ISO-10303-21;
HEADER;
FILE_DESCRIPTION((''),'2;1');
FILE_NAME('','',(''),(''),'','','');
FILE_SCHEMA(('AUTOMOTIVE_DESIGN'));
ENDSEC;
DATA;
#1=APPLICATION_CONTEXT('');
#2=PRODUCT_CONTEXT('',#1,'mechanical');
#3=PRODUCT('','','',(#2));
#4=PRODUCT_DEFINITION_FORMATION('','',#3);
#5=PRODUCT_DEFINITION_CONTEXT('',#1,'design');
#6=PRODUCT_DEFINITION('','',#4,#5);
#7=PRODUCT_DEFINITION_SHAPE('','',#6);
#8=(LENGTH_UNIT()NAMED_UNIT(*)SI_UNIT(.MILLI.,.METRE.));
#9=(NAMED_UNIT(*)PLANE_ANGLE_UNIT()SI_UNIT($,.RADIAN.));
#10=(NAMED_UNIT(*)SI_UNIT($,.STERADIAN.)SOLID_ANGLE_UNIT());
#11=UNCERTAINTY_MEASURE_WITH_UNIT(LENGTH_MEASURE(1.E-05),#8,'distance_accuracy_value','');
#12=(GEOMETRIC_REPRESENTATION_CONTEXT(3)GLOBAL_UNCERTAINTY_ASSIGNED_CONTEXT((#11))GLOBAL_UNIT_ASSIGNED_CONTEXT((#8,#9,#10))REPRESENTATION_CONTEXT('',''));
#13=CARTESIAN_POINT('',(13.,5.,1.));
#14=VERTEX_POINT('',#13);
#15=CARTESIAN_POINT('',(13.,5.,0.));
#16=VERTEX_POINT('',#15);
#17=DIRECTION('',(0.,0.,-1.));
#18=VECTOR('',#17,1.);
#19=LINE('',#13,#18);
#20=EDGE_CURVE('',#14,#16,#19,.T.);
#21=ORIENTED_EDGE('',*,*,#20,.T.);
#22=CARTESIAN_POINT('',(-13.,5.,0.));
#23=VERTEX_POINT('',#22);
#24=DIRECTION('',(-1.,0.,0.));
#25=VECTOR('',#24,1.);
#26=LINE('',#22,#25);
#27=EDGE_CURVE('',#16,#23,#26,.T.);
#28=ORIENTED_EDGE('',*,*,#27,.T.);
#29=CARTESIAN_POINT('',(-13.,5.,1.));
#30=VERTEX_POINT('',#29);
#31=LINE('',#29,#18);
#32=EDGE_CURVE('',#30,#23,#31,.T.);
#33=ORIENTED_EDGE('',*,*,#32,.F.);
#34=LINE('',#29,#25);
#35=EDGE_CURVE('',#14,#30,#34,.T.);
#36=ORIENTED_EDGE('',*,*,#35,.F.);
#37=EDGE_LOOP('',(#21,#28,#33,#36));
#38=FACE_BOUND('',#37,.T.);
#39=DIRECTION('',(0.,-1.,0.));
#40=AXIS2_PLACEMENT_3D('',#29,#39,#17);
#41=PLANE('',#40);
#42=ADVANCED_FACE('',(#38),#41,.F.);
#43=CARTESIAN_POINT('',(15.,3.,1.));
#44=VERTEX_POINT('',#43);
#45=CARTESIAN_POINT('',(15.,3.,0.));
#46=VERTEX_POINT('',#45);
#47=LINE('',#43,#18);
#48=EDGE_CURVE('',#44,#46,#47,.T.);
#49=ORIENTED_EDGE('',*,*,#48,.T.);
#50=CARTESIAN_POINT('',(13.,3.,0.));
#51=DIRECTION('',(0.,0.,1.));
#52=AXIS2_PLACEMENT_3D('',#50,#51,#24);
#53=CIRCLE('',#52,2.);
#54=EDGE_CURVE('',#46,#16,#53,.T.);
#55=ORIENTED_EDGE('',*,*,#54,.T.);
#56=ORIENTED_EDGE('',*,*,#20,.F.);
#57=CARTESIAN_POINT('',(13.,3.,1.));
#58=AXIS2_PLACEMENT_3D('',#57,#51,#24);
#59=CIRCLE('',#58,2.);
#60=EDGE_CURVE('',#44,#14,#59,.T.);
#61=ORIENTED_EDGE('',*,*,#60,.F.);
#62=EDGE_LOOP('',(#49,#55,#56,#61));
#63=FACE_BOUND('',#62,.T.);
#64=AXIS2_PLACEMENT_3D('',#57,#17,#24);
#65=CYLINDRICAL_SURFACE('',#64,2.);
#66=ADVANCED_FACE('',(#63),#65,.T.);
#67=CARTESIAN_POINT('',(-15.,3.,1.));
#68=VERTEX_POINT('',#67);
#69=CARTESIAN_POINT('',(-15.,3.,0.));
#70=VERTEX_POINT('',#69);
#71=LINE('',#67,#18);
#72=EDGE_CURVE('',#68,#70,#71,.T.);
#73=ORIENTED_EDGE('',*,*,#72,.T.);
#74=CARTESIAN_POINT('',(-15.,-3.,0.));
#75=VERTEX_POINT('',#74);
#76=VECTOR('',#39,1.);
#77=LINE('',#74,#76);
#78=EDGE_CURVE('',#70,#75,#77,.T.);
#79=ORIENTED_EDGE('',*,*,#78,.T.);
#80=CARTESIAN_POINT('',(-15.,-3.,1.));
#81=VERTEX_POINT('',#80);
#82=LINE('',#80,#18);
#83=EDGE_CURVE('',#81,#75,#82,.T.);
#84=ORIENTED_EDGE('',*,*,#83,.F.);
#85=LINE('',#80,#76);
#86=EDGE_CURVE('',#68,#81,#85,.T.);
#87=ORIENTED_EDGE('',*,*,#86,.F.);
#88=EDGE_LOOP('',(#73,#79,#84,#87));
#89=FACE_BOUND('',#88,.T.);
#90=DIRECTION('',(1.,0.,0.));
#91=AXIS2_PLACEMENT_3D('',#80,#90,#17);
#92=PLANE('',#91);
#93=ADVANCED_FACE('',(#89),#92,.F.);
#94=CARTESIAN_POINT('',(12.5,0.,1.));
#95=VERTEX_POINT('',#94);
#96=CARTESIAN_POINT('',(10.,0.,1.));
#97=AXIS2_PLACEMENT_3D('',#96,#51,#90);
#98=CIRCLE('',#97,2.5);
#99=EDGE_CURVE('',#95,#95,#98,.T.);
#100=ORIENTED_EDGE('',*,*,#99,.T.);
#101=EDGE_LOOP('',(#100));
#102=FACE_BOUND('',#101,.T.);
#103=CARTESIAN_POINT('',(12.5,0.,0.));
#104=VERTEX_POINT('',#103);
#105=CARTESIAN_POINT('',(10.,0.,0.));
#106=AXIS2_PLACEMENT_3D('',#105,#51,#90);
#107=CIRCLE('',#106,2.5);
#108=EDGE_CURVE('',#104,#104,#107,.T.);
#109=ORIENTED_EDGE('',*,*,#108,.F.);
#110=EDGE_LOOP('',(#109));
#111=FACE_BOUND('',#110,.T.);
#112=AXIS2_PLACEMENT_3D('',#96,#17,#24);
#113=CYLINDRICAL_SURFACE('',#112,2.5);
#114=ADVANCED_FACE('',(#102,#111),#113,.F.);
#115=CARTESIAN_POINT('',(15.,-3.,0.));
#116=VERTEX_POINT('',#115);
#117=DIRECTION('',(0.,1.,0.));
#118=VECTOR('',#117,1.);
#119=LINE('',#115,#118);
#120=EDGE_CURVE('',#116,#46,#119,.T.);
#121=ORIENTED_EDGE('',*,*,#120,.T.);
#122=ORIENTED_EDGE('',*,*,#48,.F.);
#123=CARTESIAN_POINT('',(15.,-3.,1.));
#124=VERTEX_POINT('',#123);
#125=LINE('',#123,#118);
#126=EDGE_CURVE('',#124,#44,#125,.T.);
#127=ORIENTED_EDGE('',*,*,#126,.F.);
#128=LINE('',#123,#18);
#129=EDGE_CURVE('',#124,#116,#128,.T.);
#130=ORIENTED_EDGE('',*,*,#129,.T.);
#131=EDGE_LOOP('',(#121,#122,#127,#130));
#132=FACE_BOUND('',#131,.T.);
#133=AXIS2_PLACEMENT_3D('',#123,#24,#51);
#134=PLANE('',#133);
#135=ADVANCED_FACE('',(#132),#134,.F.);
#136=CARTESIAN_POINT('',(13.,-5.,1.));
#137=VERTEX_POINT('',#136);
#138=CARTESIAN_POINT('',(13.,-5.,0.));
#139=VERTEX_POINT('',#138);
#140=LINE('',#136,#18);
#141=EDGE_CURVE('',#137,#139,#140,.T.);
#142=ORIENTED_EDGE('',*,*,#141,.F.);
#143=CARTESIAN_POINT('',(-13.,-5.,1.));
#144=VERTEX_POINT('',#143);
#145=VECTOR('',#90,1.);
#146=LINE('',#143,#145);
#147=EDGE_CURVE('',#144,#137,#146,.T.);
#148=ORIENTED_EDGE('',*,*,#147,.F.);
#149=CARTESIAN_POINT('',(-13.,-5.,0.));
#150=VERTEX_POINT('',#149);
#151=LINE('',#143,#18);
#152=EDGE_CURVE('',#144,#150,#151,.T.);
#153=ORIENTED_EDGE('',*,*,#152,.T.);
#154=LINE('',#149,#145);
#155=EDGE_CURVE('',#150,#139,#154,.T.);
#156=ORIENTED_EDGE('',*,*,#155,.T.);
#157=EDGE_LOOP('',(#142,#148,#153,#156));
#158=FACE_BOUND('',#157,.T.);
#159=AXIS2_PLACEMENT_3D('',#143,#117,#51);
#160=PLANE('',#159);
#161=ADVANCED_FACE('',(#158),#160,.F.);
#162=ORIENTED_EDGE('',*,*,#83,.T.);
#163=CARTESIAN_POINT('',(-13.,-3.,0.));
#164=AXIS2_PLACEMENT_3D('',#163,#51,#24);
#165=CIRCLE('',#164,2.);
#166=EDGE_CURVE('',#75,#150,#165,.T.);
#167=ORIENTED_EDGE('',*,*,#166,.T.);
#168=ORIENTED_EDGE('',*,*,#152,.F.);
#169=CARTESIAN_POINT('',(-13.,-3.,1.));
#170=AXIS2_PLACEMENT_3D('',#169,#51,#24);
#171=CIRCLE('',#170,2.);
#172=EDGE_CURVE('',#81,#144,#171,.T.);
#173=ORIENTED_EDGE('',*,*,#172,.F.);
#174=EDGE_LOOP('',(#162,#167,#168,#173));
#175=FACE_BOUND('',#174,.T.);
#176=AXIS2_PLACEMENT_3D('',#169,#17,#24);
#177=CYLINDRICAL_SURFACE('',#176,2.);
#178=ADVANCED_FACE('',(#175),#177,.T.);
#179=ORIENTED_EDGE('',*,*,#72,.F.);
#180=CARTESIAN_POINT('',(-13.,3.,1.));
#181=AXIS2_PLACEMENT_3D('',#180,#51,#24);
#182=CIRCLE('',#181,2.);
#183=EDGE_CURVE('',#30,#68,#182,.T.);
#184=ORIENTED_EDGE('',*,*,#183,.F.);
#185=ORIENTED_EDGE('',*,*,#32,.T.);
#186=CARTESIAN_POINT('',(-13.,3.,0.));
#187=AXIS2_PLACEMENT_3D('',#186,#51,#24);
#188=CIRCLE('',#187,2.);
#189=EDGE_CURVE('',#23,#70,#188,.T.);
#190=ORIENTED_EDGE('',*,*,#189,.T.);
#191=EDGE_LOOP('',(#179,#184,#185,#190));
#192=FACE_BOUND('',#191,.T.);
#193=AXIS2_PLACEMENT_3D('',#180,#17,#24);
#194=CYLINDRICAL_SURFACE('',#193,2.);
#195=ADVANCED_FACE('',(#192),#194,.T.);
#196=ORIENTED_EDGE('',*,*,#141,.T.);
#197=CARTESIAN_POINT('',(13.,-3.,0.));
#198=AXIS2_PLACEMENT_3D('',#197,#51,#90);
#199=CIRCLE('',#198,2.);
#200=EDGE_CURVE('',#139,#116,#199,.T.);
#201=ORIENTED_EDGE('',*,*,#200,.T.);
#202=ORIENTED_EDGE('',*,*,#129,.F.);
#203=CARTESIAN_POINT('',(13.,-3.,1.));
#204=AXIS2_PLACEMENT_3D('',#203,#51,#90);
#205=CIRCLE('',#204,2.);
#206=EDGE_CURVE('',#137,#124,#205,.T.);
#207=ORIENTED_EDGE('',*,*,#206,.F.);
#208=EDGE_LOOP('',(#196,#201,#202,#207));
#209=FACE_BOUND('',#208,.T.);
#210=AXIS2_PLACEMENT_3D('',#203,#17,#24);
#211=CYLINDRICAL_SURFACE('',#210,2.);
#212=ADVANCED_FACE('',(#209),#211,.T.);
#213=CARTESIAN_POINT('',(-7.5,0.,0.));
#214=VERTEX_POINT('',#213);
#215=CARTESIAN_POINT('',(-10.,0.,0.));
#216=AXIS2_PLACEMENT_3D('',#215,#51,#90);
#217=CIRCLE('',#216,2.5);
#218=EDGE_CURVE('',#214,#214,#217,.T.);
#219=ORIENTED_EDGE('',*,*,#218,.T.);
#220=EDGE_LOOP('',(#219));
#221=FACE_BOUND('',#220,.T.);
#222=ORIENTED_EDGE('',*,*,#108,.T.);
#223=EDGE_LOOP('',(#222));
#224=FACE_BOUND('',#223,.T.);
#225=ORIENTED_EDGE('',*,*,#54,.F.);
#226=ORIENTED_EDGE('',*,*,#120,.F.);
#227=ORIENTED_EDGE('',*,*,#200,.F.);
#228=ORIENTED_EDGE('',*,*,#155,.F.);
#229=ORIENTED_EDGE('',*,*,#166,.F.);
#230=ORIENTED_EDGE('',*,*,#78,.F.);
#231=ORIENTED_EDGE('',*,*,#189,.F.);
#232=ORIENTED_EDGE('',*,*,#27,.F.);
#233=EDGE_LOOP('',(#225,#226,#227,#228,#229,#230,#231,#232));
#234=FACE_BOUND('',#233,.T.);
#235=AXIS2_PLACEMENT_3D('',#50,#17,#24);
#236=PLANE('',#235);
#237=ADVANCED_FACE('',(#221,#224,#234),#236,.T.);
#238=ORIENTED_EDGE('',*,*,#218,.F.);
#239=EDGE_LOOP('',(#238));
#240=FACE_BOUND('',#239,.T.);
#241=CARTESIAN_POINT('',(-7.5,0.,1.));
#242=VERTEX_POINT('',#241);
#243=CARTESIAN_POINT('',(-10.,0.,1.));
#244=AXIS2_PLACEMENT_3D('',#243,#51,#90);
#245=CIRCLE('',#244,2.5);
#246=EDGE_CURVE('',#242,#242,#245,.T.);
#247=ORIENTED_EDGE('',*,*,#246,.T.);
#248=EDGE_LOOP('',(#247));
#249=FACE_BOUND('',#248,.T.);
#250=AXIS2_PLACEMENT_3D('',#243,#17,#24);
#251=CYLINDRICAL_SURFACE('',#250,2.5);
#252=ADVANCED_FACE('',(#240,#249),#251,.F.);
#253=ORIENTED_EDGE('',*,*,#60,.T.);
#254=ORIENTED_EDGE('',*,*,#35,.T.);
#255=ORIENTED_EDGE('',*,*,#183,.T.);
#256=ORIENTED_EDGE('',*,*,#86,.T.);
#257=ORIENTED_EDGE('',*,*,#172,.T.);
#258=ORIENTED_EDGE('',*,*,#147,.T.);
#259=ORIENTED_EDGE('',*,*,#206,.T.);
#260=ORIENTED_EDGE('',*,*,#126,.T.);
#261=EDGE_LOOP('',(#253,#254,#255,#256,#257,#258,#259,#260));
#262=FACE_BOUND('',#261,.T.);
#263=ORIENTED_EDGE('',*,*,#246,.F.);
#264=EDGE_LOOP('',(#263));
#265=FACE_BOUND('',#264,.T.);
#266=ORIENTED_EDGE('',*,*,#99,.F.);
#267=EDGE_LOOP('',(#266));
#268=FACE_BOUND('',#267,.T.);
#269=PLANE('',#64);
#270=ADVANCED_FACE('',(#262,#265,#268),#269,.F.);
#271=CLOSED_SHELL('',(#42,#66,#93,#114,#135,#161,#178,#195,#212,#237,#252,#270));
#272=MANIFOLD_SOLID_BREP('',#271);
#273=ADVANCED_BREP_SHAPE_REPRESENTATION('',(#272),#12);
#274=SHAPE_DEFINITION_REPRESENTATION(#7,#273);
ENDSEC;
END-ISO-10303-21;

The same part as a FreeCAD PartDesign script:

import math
import FreeCAD as App
import Part
import Sketcher
from FreeCAD import Vector

doc = App.newDocument("Part")
body = doc.addObject("PartDesign::Body", "Body")

sketch1 = body.newObject("Sketcher::SketchObject", "Sketch")
sketch1.AttachmentSupport = (doc.getObject("XY_Plane"), [""])
sketch1.MapMode = "FlatFace"
sketch1.addGeometry(Part.LineSegment(Vector(-13, -5, 0), Vector(13, -5, 0)), False)
sketch1.addGeometry(Part.ArcOfCircle(Part.Circle(Vector(13, -3, 0), Vector(0, 0, 1), 2), math.radians(-90), math.radians(0)), False)
sketch1.addGeometry(Part.LineSegment(Vector(15, -3, 0), Vector(15, 3, 0)), False)
sketch1.addGeometry(Part.ArcOfCircle(Part.Circle(Vector(13, 3, 0), Vector(0, 0, 1), 2), math.radians(0), math.radians(90)), False)
sketch1.addGeometry(Part.LineSegment(Vector(13, 5, 0), Vector(-13, 5, 0)), False)
sketch1.addGeometry(Part.ArcOfCircle(Part.Circle(Vector(-13, 3, 0), Vector(0, 0, 1), 2), math.radians(90), math.radians(180)), False)
sketch1.addGeometry(Part.LineSegment(Vector(-15, 3, 0), Vector(-15, -3, 0)), False)
sketch1.addGeometry(Part.ArcOfCircle(Part.Circle(Vector(-13, -3, 0), Vector(0, 0, 1), 2), math.radians(-180), math.radians(-90)), False)
sketch1.addGeometry(Part.Circle(Vector(-10, 0, 0), Vector(0, 0, 1), 2.5), False)
sketch1.addGeometry(Part.Circle(Vector(10, 0, 0), Vector(0, 0, 1), 2.5), False)
sketch1.addConstraint(Sketcher.Constraint("Tangent", 0, 2, 1, 1))
sketch1.addConstraint(Sketcher.Constraint("Tangent", 1, 2, 2, 1))
sketch1.addConstraint(Sketcher.Constraint("Tangent", 2, 2, 3, 1))
sketch1.addConstraint(Sketcher.Constraint("Tangent", 3, 2, 4, 1))
sketch1.addConstraint(Sketcher.Constraint("Tangent", 4, 2, 5, 1))
sketch1.addConstraint(Sketcher.Constraint("Tangent", 5, 2, 6, 1))
sketch1.addConstraint(Sketcher.Constraint("Tangent", 6, 2, 7, 1))
sketch1.addConstraint(Sketcher.Constraint("Tangent", 7, 2, 0, 1))
sketch1.addConstraint(Sketcher.Constraint("Horizontal", 0))
sketch1.addConstraint(Sketcher.Constraint("Vertical", 2))
sketch1.addConstraint(Sketcher.Constraint("Horizontal", 4))
sketch1.addConstraint(Sketcher.Constraint("Vertical", 6))
sketch1.addConstraint(Sketcher.Constraint("Equal", 1, 3))
sketch1.addConstraint(Sketcher.Constraint("Equal", 3, 5))
sketch1.addConstraint(Sketcher.Constraint("Equal", 5, 7))
sketch1.addConstraint(Sketcher.Constraint("Equal", 8, 9))
sketch1.addConstraint(Sketcher.Constraint("Symmetric", 1, 3, 5, 3, -1, 1))
sketch1.addConstraint(Sketcher.Constraint("Symmetric", 8, 3, 9, 3, -1, 1))
sketch1.addConstraint(Sketcher.Constraint("PointOnObject", 8, 3, -1))
sketch1.addConstraint(Sketcher.Constraint("Diameter", 8, 5.0))
sketch1.addConstraint(Sketcher.Constraint("Radius", 1, 2.0))
sketch1.addConstraint(Sketcher.Constraint("DistanceX", 0, 1, 0, 2, 26.0))
sketch1.addConstraint(Sketcher.Constraint("DistanceY", 2, 1, 2, 2, 6.0))
sketch1.addConstraint(Sketcher.Constraint("DistanceX", 8, 3, -1, 1, 10.0))
pad1 = body.newObject("PartDesign::Pad", "Pad")
pad1.Profile = sketch1
pad1.Length = 1

doc.recompute()
